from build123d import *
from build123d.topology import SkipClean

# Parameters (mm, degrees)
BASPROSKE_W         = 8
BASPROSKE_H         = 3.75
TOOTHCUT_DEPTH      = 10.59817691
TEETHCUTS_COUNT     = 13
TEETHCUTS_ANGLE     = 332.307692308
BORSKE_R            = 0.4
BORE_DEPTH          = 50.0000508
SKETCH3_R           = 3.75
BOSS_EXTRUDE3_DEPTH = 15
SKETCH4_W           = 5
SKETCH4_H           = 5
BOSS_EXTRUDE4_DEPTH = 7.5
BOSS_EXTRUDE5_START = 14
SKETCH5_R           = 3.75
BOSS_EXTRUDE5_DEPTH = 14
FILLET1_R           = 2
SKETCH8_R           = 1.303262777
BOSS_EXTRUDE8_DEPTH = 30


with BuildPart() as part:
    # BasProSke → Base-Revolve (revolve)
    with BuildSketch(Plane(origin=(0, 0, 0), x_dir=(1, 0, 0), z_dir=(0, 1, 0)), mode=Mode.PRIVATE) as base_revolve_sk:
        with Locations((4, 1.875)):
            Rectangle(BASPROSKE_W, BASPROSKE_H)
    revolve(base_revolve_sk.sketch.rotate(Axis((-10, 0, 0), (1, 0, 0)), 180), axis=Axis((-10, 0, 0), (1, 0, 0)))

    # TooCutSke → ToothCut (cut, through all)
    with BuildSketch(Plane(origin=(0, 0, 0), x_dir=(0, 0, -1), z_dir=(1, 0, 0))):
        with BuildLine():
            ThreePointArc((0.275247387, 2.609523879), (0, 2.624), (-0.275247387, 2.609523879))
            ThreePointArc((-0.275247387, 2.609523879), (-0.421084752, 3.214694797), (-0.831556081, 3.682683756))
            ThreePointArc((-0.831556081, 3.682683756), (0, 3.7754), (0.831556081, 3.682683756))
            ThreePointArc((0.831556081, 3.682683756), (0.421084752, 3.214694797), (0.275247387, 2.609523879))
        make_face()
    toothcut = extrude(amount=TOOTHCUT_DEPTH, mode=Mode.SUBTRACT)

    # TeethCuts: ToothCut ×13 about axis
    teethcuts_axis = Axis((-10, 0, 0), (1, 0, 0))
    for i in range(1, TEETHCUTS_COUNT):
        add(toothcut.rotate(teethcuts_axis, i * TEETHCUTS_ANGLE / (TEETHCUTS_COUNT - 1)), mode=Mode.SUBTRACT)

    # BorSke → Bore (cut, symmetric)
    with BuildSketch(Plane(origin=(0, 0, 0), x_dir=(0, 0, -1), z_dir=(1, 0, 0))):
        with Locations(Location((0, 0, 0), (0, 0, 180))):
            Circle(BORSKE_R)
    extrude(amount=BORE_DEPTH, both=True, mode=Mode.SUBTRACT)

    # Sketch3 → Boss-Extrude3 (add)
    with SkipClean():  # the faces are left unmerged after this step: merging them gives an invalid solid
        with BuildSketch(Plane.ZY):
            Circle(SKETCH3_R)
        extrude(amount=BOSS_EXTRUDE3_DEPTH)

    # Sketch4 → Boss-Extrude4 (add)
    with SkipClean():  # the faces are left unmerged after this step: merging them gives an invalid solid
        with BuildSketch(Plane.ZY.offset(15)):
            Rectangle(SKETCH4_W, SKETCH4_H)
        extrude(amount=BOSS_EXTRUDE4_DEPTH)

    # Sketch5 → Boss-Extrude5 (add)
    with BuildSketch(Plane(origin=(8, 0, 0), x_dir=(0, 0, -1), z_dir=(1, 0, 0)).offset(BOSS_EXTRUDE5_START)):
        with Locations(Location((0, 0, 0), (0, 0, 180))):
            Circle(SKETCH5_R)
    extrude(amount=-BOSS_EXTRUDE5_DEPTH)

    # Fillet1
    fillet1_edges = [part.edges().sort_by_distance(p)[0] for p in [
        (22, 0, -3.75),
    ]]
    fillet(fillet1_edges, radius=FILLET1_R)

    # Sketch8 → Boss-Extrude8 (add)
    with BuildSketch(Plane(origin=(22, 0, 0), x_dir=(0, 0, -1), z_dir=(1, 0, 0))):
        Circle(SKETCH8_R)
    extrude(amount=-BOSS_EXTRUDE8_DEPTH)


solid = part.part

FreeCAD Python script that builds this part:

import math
import FreeCAD as App
import Part
import Sketcher

V = App.Vector


def edges_at(feature, points):
    """Names of the edges that pass closest to the given points."""
    edges = feature.Shape.Edges
    near = lambda p: min(range(len(edges)), key=lambda i: edges[i].distToShape(Part.Vertex(*p))[0])
    return sorted({f"Edge{near(p) + 1}" for p in points})


def add_polygon(sketch, points):
    """Adds a closed chain of lines whose ends are joined by coincident constraints."""
    first, n = sketch.GeometryCount, len(points)
    for a, b in zip(points, points[1:] + points[:1]):
        sketch.addGeometry(Part.LineSegment(App.Vector(*a, 0), App.Vector(*b, 0)), False)
    for i in range(n):
        sketch.addConstraint(Sketcher.Constraint("Coincident", first + i, 2, first + (i + 1) % n, 1))

doc = App.newDocument("Part")
body = doc.addObject("PartDesign::Body", "Body")

sketch1 = doc.addObject("Sketcher::SketchObject", "Sketch")
body.addObject(sketch1)
sketch1.AttachmentSupport = (doc.XZ_Plane, [""])
sketch1.MapMode = "FlatFace"
add_polygon(sketch1, [(0, -3.8), (0, 0), (8, 0), (8, -3.8)])
sketch1.addConstraint([
    Sketcher.Constraint("Vertical", 0),
    Sketcher.Constraint("Horizontal", 1),
    Sketcher.Constraint("Vertical", 2),
    Sketcher.Constraint("Horizontal", 3),
    Sketcher.Constraint("Coincident", 0, 2, -1, 1),
    Sketcher.Constraint("DistanceX", 1, 1, 1, 2, 8.0),
    Sketcher.Constraint("DistanceY", 0, 1, 0, 2, 3.75),
])
revolution = doc.addObject("PartDesign::Revolution", "Revolution")
body.addObject(revolution)
revolution.Profile = sketch1
revolution.ReferenceAxis = (sketch1, ["H_Axis"])
revolution.Angle = 360

sketch2 = doc.addObject("Sketcher::SketchObject", "Sketch001")
body.addObject(sketch2)
sketch2.AttachmentSupport = (doc.YZ_Plane, [""])
sketch2.MapMode = "FlatFace"
sketch2.addGeometry([
    Part.ArcOfCircle(Part.Circle(V(0, 0, 0), V(0, 0, 1), 2.6), math.radians(-6.02), math.radians(6.02)),
    Part.ArcOfCircle(Part.Circle(V(2.6, -1.6, 0), V(0, 0, 1), 1.3), math.radians(35), math.radians(90)),
    Part.ArcOfCircle(Part.Circle(V(0, 0, 0), V(0, 0, 1), 3.8), math.radians(-13), math.radians(13)),
    Part.ArcOfCircle(Part.Circle(V(2.6, 1.6, 0), V(0, 0, 1), 1.3), math.radians(-90), math.radians(-35)),
], False)
sketch2.addConstraint([
    Sketcher.Constraint("Coincident", 0, 1, 1, 2),
    Sketcher.Constraint("Coincident", 1, 1, 2, 1),
    Sketcher.Constraint("Coincident", 2, 2, 3, 2),
    Sketcher.Constraint("Coincident", 3, 1, 0, 2),
    Sketcher.Constraint("Coincident", 0, 3, -1, 1),
    Sketcher.Constraint("Coincident", 2, 3, -1, 1),
    Sketcher.Constraint("Equal", 1, 3),
    Sketcher.Constraint("Symmetric", 1, 3, 3, 3, -1),
    Sketcher.Constraint("Radius", 1, 1.3),
    Sketcher.Constraint("Radius", 0, 2.624),
    Sketcher.Constraint("Radius", 2, 3.7754),
    Sketcher.Constraint("DistanceY", 1, 3, -1, 1, 1.575229),
    Sketcher.Constraint("DistanceX", 0, 1, 1, 3, 0.006881),
])
pocket1 = doc.addObject("PartDesign::Pocket", "Pocket")
body.addObject(pocket1)
pocket1.Profile = sketch2
pocket1.Type = "ThroughAll"
pocket1.Reversed = True
doc.recompute()

polarpattern = doc.addObject("PartDesign::PolarPattern", "PolarPattern")
body.addObject(polarpattern)
polarpattern.Originals = [pocket1]
polarpattern.Axis = (doc.X_Axis, [""])
polarpattern.Angle = 360
polarpattern.Occurrences = 13
body.Tip = polarpattern

sketch3 = doc.addObject("Sketcher::SketchObject", "Sketch002")
body.addObject(sketch3)
sketch3.AttachmentSupport = (doc.YZ_Plane, [""])
sketch3.MapMode = "FlatFace"
sketch3.addGeometry(Part.Circle(V(0, 0, 0), V(0, 0, 1), 0.4), False)
sketch3.addConstraint([
    Sketcher.Constraint("Coincident", 0, 3, -1, 1),
    Sketcher.Constraint("Diameter", 0, 0.8),
])
pocket2 = doc.addObject("PartDesign::Pocket", "Pocket001")
body.addObject(pocket2)
pocket2.Profile = sketch3
pocket2.Length = 100.000102
pocket2.Midplane = True

sketch4 = doc.addObject("Sketcher::SketchObject", "Sketch003")
body.addObject(sketch4)
sketch4.AttachmentSupport = (doc.YZ_Plane, [""])
sketch4.MapMode = "FlatFace"
sketch4.addGeometry(Part.Circle(V(0, 0, 0), V(0, 0, 1), 3.8), False)
sketch4.addConstraint([
    Sketcher.Constraint("Coincident", 0, 3, -1, 1),
    Sketcher.Constraint("Diameter", 0, 7.5),
])
pad1 = doc.addObject("PartDesign::Pad", "Pad")
body.addObject(pad1)
pad1.Profile = sketch4
pad1.Length = 15
pad1.Reversed = True

sketch5 = doc.addObject("Sketcher::SketchObject", "Sketch004")
body.addObject(sketch5)
sketch5.AttachmentSupport = (doc.YZ_Plane, [""])
sketch5.MapMode = "FlatFace"
sketch5.AttachmentOffset = App.Placement(V(0, 0, -15), App.Rotation())
add_polygon(sketch5, [(2, -2), (-2, -2), (-2, 2), (2, 2)])
sketch5.addConstraint([
    Sketcher.Constraint("Horizontal", 0),
    Sketcher.Constraint("Vertical", 1),
    Sketcher.Constraint("Horizontal", 2),
    Sketcher.Constraint("Vertical", 3),
    Sketcher.Constraint("Symmetric", 0, 2, 2, 2, -1, 1),
    Sketcher.Constraint("Equal", 2, 1),
    Sketcher.Constraint("DistanceX", 0, 2, 0, 1, 5.0),
])
pad2 = doc.addObject("PartDesign::Pad", "Pad001")
body.addObject(pad2)
pad2.Profile = sketch5
pad2.Length = 7.5
pad2.Reversed = True

sketch6 = doc.addObject("Sketcher::SketchObject", "Sketch005")
body.addObject(sketch6)
sketch6.AttachmentSupport = (doc.YZ_Plane, [""])
sketch6.MapMode = "FlatFace"
sketch6.AttachmentOffset = App.Placement(V(0, 0, 22), App.Rotation())
sketch6.addGeometry(Part.Circle(V(0, 0, 0), V(0, 0, 1), 3.8), False)
sketch6.addConstraint([
    Sketcher.Constraint("Coincident", 0, 3, -1, 1),
    Sketcher.Constraint("Diameter", 0, 7.5),
])
pad3 = doc.addObject("PartDesign::Pad", "Pad002")
body.addObject(pad3)
pad3.Profile = sketch6
pad3.Length = 14
pad3.Reversed = True
doc.recompute()

fillet = doc.addObject("PartDesign::Fillet", "Fillet")
body.addObject(fillet)
fillet.Base = (pad3, edges_at(pad3, [(22, 0, -3.75)]))
fillet.Radius = 2

sketch7 = doc.addObject("Sketcher::SketchObject", "Sketch006")
body.addObject(sketch7)
sketch7.AttachmentSupport = (doc.YZ_Plane, [""])
sketch7.MapMode = "FlatFace"
sketch7.AttachmentOffset = App.Placement(V(0, 0, 22), App.Rotation())
sketch7.addGeometry(Part.Circle(V(0, 0, 0), V(0, 0, 1), 1.3), False)
sketch7.addConstraint([
    Sketcher.Constraint("Coincident", 0, 3, -1, 1),
    Sketcher.Constraint("Diameter", 0, 2.606526),
])
pad4 = doc.addObject("PartDesign::Pad", "Pad003")
body.addObject(pad4)
pad4.Profile = sketch7
pad4.Length = 30
pad4.Reversed = True

doc.recompute()
